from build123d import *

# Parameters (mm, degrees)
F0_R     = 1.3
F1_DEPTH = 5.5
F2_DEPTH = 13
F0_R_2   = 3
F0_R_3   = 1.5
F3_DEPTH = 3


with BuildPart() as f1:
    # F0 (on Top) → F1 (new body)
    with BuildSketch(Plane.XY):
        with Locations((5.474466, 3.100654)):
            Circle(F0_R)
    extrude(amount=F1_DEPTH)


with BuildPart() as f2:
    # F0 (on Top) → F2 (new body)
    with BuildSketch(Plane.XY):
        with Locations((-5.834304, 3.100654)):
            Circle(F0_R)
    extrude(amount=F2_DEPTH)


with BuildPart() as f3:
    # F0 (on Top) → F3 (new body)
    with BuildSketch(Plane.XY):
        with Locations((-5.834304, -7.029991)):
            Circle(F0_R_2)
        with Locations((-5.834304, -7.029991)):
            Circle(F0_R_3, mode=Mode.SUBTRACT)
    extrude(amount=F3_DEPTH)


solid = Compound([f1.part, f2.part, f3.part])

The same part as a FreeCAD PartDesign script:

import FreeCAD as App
import Part
import Sketcher

V = App.Vector

doc = App.newDocument("Part")
body = doc.addObject("PartDesign::Body", "Body")

# Sketch on XY plane
sketch1 = doc.addObject("Sketcher::SketchObject", "Sketch")
body.addObject(sketch1)
sketch1.AttachmentSupport = (doc.XY_Plane, [""])
sketch1.MapMode = "FlatFace"
sketch1.addGeometry(Part.Circle(V(5.474466, 3.100654, 0), V(0, 0, 1), 1.3), False)
sketch1.addConstraint([
    Sketcher.Constraint("Diameter", 0, 2.6),
    Sketcher.Constraint("DistanceX", -1, 1, 0, 3, 5.474466),
    Sketcher.Constraint("DistanceY", -1, 1, 0, 3, 3.100654),
])
pad1 = doc.addObject("PartDesign::Pad", "Pad")
body.addObject(pad1)
pad1.Profile = sketch1
pad1.Length = 5.5
body2 = doc.addObject("PartDesign::Body", "Body001")

# Sketch on XY plane
sketch2 = doc.addObject("Sketcher::SketchObject", "Sketch001")
body2.addObject(sketch2)
sketch2.AttachmentSupport = (doc.getObject("XY_Plane001"), [""])
sketch2.MapMode = "FlatFace"
sketch2.addGeometry(Part.Circle(V(-5.834304, 3.100654, 0), V(0, 0, 1), 1.3), False)
sketch2.addConstraint([
    Sketcher.Constraint("Diameter", 0, 2.6),
    Sketcher.Constraint("DistanceX", 0, 3, -1, 1, 5.834304),
    Sketcher.Constraint("DistanceY", -1, 1, 0, 3, 3.100654),
])
pad2 = doc.addObject("PartDesign::Pad", "Pad001")
body2.addObject(pad2)
pad2.Profile = sketch2
pad2.Length = 13
body3 = doc.addObject("PartDesign::Body", "Body002")

# Sketch on XY plane
sketch3 = doc.addObject("Sketcher::SketchObject", "Sketch002")
body3.addObject(sketch3)
sketch3.AttachmentSupport = (doc.getObject("XY_Plane002"), [""])
sketch3.MapMode = "FlatFace"
sketch3.addGeometry([
    Part.Circle(V(-5.834304, -7.029991, 0), V(0, 0, 1), 3),
    Part.Circle(V(-5.834304, -7.029991, 0), V(0, 0, 1), 1.5),
], False)
sketch3.addConstraint([
    Sketcher.Constraint("Coincident", 1, 3, 0, 3),
    Sketcher.Constraint("Diameter", 0, 6.0),
    Sketcher.Constraint("Diameter", 1, 3.0),
    Sketcher.Constraint("DistanceY", 0, 3, -1, 1, 7.029991),
    Sketcher.Constraint("DistanceX", 0, 3, -1, 1, 5.834304),
])
pad3 = doc.addObject("PartDesign::Pad", "Pad002")
body3.addObject(pad3)
pad3.Profile = sketch3
pad3.Length = 3

doc.recompute()
